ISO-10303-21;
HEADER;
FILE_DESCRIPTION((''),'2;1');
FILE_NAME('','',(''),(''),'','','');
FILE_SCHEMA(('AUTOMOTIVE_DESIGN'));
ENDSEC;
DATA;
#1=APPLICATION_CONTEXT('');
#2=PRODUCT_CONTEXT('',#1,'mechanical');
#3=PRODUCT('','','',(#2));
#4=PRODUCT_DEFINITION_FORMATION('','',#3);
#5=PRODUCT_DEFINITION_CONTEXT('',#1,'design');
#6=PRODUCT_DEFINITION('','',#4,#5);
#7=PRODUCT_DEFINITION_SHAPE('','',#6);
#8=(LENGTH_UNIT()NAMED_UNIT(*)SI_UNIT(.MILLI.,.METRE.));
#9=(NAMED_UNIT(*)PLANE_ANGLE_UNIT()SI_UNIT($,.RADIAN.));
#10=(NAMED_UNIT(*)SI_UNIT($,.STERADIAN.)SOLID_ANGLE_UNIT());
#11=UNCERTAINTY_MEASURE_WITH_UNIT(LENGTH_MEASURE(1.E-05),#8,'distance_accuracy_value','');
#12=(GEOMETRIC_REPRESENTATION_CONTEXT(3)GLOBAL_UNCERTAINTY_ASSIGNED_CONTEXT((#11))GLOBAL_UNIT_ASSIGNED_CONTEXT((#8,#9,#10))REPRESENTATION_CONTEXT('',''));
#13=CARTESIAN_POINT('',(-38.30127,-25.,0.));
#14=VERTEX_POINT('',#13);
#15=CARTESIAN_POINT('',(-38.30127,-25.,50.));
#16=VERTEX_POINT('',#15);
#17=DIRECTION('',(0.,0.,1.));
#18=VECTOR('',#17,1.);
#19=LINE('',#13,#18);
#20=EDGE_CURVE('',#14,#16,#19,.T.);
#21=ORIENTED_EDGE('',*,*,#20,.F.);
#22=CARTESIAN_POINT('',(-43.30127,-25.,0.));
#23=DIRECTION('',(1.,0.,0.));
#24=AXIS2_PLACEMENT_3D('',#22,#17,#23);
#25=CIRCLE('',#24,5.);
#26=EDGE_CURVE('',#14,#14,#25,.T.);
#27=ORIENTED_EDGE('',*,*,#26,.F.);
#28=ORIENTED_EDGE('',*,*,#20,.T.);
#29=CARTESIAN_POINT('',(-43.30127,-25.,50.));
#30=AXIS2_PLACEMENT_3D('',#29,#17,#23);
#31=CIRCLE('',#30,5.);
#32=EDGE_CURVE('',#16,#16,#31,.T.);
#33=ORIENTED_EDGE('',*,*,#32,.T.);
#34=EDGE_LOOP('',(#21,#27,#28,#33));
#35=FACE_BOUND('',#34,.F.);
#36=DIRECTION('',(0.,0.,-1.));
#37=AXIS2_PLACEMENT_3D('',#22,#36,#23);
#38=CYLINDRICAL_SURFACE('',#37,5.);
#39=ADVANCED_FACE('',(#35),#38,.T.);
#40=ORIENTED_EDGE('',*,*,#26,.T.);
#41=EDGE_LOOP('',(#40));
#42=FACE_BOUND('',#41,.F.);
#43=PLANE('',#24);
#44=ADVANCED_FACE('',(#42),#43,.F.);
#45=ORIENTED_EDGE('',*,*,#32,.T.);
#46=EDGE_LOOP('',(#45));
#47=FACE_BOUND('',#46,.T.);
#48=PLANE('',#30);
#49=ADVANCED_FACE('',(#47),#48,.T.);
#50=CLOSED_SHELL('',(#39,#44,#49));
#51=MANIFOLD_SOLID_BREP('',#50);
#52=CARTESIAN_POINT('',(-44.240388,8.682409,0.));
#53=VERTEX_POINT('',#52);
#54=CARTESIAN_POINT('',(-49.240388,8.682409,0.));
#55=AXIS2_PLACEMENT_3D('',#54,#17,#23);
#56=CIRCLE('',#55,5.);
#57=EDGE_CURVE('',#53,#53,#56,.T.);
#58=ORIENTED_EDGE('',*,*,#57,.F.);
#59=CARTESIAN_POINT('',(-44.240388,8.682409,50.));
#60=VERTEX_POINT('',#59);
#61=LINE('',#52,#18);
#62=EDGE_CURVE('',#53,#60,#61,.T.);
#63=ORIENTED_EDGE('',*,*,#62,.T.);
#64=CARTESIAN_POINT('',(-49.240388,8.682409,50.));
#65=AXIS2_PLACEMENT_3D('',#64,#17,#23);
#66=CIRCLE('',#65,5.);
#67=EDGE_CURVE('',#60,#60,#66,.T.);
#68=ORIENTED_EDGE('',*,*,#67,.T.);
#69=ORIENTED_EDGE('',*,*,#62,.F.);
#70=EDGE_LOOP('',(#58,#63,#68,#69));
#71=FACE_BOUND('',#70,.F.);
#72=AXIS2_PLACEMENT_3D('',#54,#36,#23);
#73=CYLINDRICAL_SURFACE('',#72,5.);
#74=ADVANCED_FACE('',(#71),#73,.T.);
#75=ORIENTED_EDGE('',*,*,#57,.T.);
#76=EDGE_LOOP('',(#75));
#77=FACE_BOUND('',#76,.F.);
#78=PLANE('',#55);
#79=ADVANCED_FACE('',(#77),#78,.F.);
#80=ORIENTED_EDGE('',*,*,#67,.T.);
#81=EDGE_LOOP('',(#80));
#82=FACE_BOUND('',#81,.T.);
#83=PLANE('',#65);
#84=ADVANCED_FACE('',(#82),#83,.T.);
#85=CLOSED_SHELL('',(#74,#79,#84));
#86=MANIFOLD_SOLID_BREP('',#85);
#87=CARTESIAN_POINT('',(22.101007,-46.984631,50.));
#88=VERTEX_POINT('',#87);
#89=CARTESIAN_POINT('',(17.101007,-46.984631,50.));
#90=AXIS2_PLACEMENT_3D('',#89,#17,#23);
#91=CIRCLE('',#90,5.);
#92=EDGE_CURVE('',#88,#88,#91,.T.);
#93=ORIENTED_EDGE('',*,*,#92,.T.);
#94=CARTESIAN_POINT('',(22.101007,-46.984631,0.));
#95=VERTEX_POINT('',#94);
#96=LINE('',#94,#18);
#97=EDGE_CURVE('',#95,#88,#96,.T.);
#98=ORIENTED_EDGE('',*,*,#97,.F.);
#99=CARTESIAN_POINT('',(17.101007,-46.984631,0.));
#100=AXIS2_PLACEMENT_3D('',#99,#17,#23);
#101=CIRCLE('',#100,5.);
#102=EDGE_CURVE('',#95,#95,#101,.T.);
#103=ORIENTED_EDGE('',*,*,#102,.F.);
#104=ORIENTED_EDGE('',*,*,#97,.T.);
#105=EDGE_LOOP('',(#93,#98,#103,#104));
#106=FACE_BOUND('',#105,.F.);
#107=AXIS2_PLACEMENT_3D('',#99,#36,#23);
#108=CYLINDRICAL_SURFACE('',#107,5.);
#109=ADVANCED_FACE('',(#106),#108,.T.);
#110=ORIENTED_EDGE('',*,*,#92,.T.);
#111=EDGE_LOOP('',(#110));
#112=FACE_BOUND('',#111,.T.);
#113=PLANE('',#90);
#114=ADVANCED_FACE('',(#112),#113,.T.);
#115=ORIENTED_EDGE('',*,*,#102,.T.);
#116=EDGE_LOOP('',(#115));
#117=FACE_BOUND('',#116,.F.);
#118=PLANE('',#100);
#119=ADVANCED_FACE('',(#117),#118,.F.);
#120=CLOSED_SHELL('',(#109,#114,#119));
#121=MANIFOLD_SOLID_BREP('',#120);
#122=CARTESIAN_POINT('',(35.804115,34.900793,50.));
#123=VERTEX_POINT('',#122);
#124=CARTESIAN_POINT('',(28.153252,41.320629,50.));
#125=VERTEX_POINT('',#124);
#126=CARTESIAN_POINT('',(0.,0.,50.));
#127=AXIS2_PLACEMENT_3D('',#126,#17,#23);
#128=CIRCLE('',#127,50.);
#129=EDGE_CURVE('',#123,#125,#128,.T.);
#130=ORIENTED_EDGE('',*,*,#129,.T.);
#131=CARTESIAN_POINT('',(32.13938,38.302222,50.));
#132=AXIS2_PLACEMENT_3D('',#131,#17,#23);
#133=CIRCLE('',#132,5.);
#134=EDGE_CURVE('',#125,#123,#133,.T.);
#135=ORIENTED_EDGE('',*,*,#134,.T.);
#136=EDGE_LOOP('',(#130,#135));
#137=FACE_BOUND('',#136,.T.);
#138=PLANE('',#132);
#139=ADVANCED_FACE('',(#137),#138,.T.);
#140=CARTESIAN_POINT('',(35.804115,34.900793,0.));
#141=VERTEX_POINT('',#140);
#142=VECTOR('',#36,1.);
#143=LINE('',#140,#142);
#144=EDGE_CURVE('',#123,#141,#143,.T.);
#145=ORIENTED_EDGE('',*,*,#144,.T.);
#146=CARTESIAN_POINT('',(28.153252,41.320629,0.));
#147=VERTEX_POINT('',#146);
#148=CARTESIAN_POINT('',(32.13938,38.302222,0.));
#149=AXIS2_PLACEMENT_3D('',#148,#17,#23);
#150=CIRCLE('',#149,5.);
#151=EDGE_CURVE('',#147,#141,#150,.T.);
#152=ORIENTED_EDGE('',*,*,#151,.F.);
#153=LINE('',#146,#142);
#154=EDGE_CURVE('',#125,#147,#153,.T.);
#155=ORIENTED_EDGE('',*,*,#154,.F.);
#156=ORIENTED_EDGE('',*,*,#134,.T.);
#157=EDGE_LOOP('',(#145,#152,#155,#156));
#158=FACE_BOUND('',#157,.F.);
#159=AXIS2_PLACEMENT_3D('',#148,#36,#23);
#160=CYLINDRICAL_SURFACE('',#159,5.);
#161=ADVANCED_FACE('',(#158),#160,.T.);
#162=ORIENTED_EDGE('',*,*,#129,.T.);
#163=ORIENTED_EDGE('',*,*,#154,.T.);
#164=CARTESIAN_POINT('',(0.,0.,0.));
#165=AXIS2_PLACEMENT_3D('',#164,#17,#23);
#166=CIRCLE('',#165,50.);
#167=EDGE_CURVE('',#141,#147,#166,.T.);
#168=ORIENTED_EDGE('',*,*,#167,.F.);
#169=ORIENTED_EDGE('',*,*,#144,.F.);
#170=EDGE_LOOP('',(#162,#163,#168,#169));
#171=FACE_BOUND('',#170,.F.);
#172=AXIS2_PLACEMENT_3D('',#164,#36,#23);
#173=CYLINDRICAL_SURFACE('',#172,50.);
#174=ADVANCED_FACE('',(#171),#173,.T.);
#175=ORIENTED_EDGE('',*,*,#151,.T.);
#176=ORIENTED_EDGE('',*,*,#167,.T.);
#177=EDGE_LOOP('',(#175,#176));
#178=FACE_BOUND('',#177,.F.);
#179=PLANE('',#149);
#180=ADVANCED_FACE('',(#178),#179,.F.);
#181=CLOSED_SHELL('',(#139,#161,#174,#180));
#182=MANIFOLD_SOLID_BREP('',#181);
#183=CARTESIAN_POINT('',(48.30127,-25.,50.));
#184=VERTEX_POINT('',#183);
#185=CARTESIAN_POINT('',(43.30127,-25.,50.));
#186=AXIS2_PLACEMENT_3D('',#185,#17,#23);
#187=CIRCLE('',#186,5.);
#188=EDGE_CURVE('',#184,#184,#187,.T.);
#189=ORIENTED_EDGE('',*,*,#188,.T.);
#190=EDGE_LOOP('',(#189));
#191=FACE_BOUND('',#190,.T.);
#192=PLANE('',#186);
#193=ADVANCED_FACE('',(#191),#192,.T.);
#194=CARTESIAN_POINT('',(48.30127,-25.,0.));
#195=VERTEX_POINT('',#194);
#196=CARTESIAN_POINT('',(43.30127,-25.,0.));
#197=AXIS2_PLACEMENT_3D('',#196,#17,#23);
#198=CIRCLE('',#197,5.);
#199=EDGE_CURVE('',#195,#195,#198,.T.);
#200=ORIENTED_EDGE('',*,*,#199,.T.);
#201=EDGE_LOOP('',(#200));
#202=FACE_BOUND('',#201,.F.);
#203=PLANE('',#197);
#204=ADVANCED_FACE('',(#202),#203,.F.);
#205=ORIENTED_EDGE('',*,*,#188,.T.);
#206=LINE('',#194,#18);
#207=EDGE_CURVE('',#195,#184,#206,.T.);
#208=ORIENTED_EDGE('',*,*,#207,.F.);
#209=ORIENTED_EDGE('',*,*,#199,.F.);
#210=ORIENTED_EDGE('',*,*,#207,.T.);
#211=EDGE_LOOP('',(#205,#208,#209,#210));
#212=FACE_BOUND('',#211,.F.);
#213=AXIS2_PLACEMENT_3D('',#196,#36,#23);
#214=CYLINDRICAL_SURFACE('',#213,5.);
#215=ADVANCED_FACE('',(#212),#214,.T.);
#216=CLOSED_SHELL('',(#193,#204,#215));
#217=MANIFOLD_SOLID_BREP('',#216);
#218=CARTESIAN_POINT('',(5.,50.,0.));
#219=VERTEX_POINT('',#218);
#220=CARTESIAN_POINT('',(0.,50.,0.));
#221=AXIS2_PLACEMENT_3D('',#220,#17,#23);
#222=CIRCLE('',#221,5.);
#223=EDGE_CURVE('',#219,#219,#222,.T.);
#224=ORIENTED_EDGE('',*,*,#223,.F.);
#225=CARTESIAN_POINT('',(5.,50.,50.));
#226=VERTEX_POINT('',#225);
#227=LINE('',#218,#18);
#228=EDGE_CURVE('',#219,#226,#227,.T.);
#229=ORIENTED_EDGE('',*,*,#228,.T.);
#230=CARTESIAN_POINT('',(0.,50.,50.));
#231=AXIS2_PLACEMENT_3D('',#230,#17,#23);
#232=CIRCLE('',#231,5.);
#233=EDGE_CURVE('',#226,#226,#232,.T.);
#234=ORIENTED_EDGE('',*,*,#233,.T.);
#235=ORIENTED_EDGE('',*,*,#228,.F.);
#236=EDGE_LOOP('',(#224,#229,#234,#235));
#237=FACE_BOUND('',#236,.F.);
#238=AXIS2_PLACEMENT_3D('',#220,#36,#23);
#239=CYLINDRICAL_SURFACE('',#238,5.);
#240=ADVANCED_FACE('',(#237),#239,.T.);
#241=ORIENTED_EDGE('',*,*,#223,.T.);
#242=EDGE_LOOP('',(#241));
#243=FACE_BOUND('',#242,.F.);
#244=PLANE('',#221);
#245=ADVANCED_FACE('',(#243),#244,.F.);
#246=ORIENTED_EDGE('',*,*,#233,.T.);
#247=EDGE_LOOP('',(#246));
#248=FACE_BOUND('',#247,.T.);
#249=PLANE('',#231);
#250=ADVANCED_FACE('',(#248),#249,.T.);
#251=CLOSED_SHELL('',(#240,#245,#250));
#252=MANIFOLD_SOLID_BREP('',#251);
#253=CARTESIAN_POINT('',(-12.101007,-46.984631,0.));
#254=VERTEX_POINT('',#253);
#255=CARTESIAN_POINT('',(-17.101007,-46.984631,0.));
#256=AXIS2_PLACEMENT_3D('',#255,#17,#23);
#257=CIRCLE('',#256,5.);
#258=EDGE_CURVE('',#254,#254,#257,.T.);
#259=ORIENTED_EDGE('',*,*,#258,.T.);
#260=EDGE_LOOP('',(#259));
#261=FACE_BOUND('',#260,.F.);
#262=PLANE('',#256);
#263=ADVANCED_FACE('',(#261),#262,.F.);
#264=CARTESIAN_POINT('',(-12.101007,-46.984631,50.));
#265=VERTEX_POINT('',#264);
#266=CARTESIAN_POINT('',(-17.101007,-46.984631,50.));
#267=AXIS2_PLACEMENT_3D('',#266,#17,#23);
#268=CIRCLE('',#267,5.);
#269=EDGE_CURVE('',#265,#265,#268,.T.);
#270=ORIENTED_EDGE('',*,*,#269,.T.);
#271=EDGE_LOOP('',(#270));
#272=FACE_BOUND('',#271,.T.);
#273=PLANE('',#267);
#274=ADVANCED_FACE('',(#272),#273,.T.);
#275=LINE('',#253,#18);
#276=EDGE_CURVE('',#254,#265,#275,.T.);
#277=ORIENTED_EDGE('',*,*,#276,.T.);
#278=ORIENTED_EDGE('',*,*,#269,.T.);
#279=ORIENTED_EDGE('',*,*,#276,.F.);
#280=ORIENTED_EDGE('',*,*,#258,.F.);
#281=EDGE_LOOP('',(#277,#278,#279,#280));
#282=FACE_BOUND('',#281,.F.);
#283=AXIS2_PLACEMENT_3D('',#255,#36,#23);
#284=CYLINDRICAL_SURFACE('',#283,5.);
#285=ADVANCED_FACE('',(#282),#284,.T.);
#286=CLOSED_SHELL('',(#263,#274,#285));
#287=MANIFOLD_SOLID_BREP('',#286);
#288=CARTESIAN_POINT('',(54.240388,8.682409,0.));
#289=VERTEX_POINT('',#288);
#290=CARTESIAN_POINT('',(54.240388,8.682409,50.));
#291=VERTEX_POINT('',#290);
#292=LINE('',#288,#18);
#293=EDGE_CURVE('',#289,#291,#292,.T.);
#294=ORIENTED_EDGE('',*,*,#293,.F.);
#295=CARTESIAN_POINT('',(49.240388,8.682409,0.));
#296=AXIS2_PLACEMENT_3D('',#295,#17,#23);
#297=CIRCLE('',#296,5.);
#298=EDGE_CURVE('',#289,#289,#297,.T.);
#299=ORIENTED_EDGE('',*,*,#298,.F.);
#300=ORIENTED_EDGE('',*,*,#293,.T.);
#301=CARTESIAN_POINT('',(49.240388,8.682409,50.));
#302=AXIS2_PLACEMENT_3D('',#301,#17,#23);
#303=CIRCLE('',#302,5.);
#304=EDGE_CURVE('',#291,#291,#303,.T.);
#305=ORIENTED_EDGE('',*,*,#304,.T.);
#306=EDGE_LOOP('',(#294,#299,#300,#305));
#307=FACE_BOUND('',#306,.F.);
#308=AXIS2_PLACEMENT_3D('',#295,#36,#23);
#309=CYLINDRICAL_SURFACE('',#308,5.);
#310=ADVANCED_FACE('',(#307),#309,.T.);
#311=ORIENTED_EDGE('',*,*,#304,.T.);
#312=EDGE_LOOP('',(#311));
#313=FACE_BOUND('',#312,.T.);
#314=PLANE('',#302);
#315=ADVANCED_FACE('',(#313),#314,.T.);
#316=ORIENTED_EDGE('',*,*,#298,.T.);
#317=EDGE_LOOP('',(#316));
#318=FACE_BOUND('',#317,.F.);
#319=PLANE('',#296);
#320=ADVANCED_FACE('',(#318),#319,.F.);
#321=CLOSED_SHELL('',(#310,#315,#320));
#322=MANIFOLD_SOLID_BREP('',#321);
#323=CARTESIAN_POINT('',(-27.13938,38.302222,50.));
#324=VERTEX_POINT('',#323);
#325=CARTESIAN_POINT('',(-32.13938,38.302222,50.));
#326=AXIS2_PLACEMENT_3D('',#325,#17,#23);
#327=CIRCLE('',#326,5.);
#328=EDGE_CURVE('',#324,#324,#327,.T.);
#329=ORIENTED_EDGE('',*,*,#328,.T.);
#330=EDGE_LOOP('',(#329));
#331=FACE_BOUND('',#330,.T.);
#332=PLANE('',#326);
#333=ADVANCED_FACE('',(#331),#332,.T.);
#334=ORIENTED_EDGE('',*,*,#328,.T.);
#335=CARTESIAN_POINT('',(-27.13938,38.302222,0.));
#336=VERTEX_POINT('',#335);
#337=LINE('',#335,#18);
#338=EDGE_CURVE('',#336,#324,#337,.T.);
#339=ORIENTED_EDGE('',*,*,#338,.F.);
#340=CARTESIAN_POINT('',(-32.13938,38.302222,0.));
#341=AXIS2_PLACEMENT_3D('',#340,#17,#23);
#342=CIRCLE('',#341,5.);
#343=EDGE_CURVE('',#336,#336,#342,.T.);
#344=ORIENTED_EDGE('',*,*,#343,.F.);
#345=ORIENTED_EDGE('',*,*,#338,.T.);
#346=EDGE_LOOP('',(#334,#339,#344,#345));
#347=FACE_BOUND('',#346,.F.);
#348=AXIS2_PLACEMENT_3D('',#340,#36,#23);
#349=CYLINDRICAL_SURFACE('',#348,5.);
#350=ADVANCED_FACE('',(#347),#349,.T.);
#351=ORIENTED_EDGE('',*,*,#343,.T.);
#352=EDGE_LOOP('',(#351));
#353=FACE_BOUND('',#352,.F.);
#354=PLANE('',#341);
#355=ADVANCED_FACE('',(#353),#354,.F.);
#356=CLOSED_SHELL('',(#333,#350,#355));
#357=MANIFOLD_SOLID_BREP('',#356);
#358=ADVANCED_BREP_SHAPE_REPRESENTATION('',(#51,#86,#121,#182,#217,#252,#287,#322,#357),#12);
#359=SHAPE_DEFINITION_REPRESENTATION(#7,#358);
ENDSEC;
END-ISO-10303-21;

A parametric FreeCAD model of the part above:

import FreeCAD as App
import Part
import Sketcher
from FreeCAD import Vector

doc = App.newDocument("Part")
params = doc.addObject("Spreadsheet::Sheet", "Params")
for row, (alias, value) in enumerate([
    ("sketch1_diameter", "100 mm"),
    ("pad1_length", "50 mm"),
    ("sketch2_diameter", "10 mm"),
    ("pad2_length", "50 mm"),
    ("sketch3_diameter", "10 mm"),
    ("pad3_length", "50 mm"),
    ("sketch4_diameter", "10 mm"),
    ("pad4_length", "50 mm"),
    ("sketch5_diameter", "10 mm"),
    ("pad5_length", "50 mm"),
    ("sketch6_diameter", "10 mm"),
    ("pad6_length", "50 mm"),
    ("sketch7_diameter", "10 mm"),
    ("pad7_length", "50 mm"),
    ("sketch8_diameter", "10 mm"),
    ("pad8_length", "50 mm"),
    ("sketch9_diameter", "10 mm"),
    ("pad9_length", "50 mm"),
    ("sketch10_diameter", "10 mm"),
    ("pad10_length", "50 mm"),
], start=1):
    params.set(f"A{row}", alias)
    params.set(f"B{row}", "=" + value)
    params.setAlias(f"B{row}", alias)

body = doc.addObject("PartDesign::Body", "Body")

# Sketch on XY plane
sketch1 = body.newObject("Sketcher::SketchObject", "Sketch")
sketch1.AttachmentSupport = (doc.getObject("XY_Plane"), [""])
sketch1.MapMode = "FlatFace"
sketch1.addGeometry(Part.Circle(Vector(0, 0, 0), Vector(0, 0, 1), 50), False)
sketch1.addConstraint(Sketcher.Constraint("Coincident", 0, 3, -1, 1))
sketch1.addConstraint(Sketcher.Constraint("Diameter", 0, 100.0))
sketch1.setExpression("Constraints[1]", "Params.sketch1_diameter")
pad1 = body.newObject("PartDesign::Pad", "Pad")
pad1.Profile = sketch1
pad1.setExpression("Length", "Params.pad1_length")
body2 = doc.addObject("PartDesign::Body", "Body001")

# Sketch on XY plane
sketch2 = body2.newObject("Sketcher::SketchObject", "Sketch001")
sketch2.AttachmentSupport = (doc.getObject("XY_Plane001"), [""])
sketch2.MapMode = "FlatFace"
sketch2.addGeometry(Part.Circle(Vector(0, 50, 0), Vector(0, 0, 1), 5), False)
sketch2.addConstraint(Sketcher.Constraint("PointOnObject", 0, 3, -2))
sketch2.addConstraint(Sketcher.Constraint("Diameter", 0, 10.0))
sketch2.addConstraint(Sketcher.Constraint("DistanceY", -1, 1, 0, 3, 50.0))
sketch2.setExpression("Constraints[1]", "Params.sketch2_diameter")
pad2 = body2.newObject("PartDesign::Pad", "Pad001")
pad2.Profile = sketch2
pad2.setExpression("Length", "Params.pad2_length")
body3 = doc.addObject("PartDesign::Body", "Body002")

# Sketch on XY plane
sketch3 = body3.newObject("Sketcher::SketchObject", "Sketch002")
sketch3.AttachmentSupport = (doc.getObject("XY_Plane002"), [""])
sketch3.MapMode = "FlatFace"
sketch3.addGeometry(Part.Circle(Vector(-32, 38, 0), Vector(0, 0, 1), 5), False)
sketch3.addConstraint(Sketcher.Constraint("Diameter", 0, 10.0))
sketch3.addConstraint(Sketcher.Constraint("DistanceX", 0, 3, -1, 1, 32.13938))
sketch3.addConstraint(Sketcher.Constraint("DistanceY", -1, 1, 0, 3, 38.302222))
sketch3.setExpression("Constraints[0]", "Params.sketch3_diameter")
pad3 = body3.newObject("PartDesign::Pad", "Pad002")
pad3.Profile = sketch3
pad3.setExpression("Length", "Params.pad3_length")
body4 = doc.addObject("PartDesign::Body", "Body003")

# Sketch on XY plane
sketch4 = body4.newObject("Sketcher::SketchObject", "Sketch003")
sketch4.AttachmentSupport = (doc.getObject("XY_Plane003"), [""])
sketch4.MapMode = "FlatFace"
sketch4.addGeometry(Part.Circle(Vector(-49, 9, 0), Vector(0, 0, 1), 5), False)
sketch4.addConstraint(Sketcher.Constraint("Diameter", 0, 10.0))
sketch4.addConstraint(Sketcher.Constraint("DistanceY", -1, 1, 0, 3, 8.682409))
sketch4.addConstraint(Sketcher.Constraint("DistanceX", 0, 3, -1, 1, 49.240388))
sketch4.setExpression("Constraints[0]", "Params.sketch4_diameter")
pad4 = body4.newObject("PartDesign::Pad", "Pad003")
pad4.Profile = sketch4
pad4.setExpression("Length", "Params.pad4_length")
body5 = doc.addObject("PartDesign::Body", "Body004")

# Sketch on XY plane
sketch5 = body5.newObject("Sketcher::SketchObject", "Sketch004")
sketch5.AttachmentSupport = (doc.getObject("XY_Plane004"), [""])
sketch5.MapMode = "FlatFace"
sketch5.addGeometry(Part.Circle(Vector(-43, -25, 0), Vector(0, 0, 1), 5), False)
sketch5.addConstraint(Sketcher.Constraint("Diameter", 0, 10.0))
sketch5.addConstraint(Sketcher.Constraint("DistanceY", 0, 3, -1, 1, 25.0))
sketch5.addConstraint(Sketcher.Constraint("DistanceX", 0, 3, -1, 1, 43.30127))
sketch5.setExpression("Constraints[0]", "Params.sketch5_diameter")
pad5 = body5.newObject("PartDesign::Pad", "Pad004")
pad5.Profile = sketch5
pad5.setExpression("Length", "Params.pad5_length")
body6 = doc.addObject("PartDesign::Body", "Body005")

# Sketch on XY plane
sketch6 = body6.newObject("Sketcher::SketchObject", "Sketch005")
sketch6.AttachmentSupport = (doc.getObject("XY_Plane005"), [""])
sketch6.MapMode = "FlatFace"
sketch6.addGeometry(Part.Circle(Vector(-17, -47, 0), Vector(0, 0, 1), 5), False)
sketch6.addConstraint(Sketcher.Constraint("Diameter", 0, 10.0))
sketch6.addConstraint(Sketcher.Constraint("DistanceY", 0, 3, -1, 1, 46.984631))
sketch6.addConstraint(Sketcher.Constraint("DistanceX", 0, 3, -1, 1, 17.101007))
sketch6.setExpression("Constraints[0]", "Params.sketch6_diameter")
pad6 = body6.newObject("PartDesign::Pad", "Pad005")
pad6.Profile = sketch6
pad6.setExpression("Length", "Params.pad6_length")
body7 = doc.addObject("PartDesign::Body", "Body006")

# Sketch on XY plane
sketch7 = body7.newObject("Sketcher::SketchObject", "Sketch006")
sketch7.AttachmentSupport = (doc.getObject("XY_Plane006"), [""])
sketch7.MapMode = "FlatFace"
sketch7.addGeometry(Part.Circle(Vector(17, -47, 0), Vector(0, 0, 1), 5), False)
sketch7.addConstraint(Sketcher.Constraint("Diameter", 0, 10.0))
sketch7.addConstraint(Sketcher.Constraint("DistanceY", 0, 3, -1, 1, 46.984631))
sketch7.addConstraint(Sketcher.Constraint("DistanceX", -1, 1, 0, 3, 17.101007))
sketch7.setExpression("Constraints[0]", "Params.sketch7_diameter")
pad7 = body7.newObject("PartDesign::Pad", "Pad006")
pad7.Profile = sketch7
pad7.setExpression("Length", "Params.pad7_length")
body8 = doc.addObject("PartDesign::Body", "Body007")

# Sketch on XY plane
sketch8 = body8.newObject("Sketcher::SketchObject", "Sketch007")
sketch8.AttachmentSupport = (doc.getObject("XY_Plane007"), [""])
sketch8.MapMode = "FlatFace"
sketch8.addGeometry(Part.Circle(Vector(43, -25, 0), Vector(0, 0, 1), 5), False)
sketch8.addConstraint(Sketcher.Constraint("Diameter", 0, 10.0))
sketch8.addConstraint(Sketcher.Constraint("DistanceY", 0, 3, -1, 1, 25.0))
sketch8.addConstraint(Sketcher.Constraint("DistanceX", -1, 1, 0, 3, 43.30127))
sketch8.setExpression("Constraints[0]", "Params.sketch8_diameter")
pad8 = body8.newObject("PartDesign::Pad", "Pad007")
pad8.Profile = sketch8
pad8.setExpression("Length", "Params.pad8_length")
body9 = doc.addObject("PartDesign::Body", "Body008")

# Sketch on XY plane
sketch9 = body9.newObject("Sketcher::SketchObject", "Sketch008")
sketch9.AttachmentSupport = (doc.getObject("XY_Plane008"), [""])
sketch9.MapMode = "FlatFace"
sketch9.addGeometry(Part.Circle(Vector(49, 9, 0), Vector(0, 0, 1), 5), False)
sketch9.addConstraint(Sketcher.Constraint("Diameter", 0, 10.0))
sketch9.addConstraint(Sketcher.Constraint("DistanceY", -1, 1, 0, 3, 8.682409))
sketch9.addConstraint(Sketcher.Constraint("DistanceX", -1, 1, 0, 3, 49.240388))
sketch9.setExpression("Constraints[0]", "Params.sketch9_diameter")
pad9 = body9.newObject("PartDesign::Pad", "Pad008")
pad9.Profile = sketch9
pad9.setExpression("Length", "Params.pad9_length")
body10 = doc.addObject("PartDesign::Body", "Body009")

# Sketch on XY plane
sketch10 = body10.newObject("Sketcher::SketchObject", "Sketch009")
sketch10.AttachmentSupport = (doc.getObject("XY_Plane009"), [""])
sketch10.MapMode = "FlatFace"
sketch10.addGeometry(Part.Circle(Vector(32, 38, 0), Vector(0, 0, 1), 5), False)
sketch10.addConstraint(Sketcher.Constraint("Diameter", 0, 10.0))
sketch10.addConstraint(Sketcher.Constraint("DistanceX", -1, 1, 0, 3, 32.13938))
sketch10.addConstraint(Sketcher.Constraint("DistanceY", -1, 1, 0, 3, 38.302222))
sketch10.setExpression("Constraints[0]", "Params.sketch10_diameter")
pad10 = body10.newObject("PartDesign::Pad", "Pad009")
pad10.Profile = sketch10
pad10.setExpression("Length", "Params.pad10_length")
doc.recompute()

boolean = body10.newObject("PartDesign::Boolean", "Boolean")
boolean.Type = "Common"
boolean.addObjects([body])

doc.recompute()
